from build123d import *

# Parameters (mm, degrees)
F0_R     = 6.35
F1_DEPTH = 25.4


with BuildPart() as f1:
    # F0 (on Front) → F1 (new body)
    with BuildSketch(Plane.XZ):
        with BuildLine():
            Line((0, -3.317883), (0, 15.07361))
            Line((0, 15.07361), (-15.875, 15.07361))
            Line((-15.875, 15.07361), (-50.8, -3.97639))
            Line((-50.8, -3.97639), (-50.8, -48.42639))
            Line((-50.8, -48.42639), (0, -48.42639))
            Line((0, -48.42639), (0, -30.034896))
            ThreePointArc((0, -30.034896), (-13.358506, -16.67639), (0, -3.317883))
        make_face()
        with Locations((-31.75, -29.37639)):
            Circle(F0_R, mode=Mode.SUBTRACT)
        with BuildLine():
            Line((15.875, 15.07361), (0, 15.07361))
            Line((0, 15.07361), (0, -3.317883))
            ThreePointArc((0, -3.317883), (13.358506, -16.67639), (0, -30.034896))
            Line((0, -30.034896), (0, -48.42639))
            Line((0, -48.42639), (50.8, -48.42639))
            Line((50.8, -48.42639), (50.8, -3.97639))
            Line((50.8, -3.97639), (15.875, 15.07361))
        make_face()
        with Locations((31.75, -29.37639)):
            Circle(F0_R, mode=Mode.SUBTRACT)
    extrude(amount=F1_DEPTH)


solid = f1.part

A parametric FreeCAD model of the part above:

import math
import FreeCAD as App
import Part
import Sketcher
Q = App.Units.Quantity


def add_polygon(sketch, points):
    """Adds a closed chain of lines whose ends are joined by coincident constraints."""
    first, n = sketch.GeometryCount, len(points)
    for a, b in zip(points, points[1:] + points[:1]):
        sketch.addGeometry(Part.LineSegment(App.Vector(*a, 0), App.Vector(*b, 0)), False)
    for i in range(n):
        sketch.addConstraint(Sketcher.Constraint("Coincident", first + i, 2, first + (i + 1) % n, 1))

doc = App.newDocument("Part")
body = doc.addObject("PartDesign::Body", "Body")

# Sketch on XZ plane
sketch1 = body.newObject("Sketcher::SketchObject", "Sketch")
sketch1.AttachmentSupport = (doc.getObject("XZ_Plane"), [""])
sketch1.MapMode = "FlatFace"
add_polygon(sketch1, [(-16, 15), (-51, -4), (-51, -48), (51, -48), (51, -4), (16, 15)])  # lines 0-5
sketch1.addGeometry(Part.Circle(App.Vector(-32, -29, 0), App.Vector(0, 0, 1), 6), False)  # 6
sketch1.addGeometry(Part.Circle(App.Vector(32, -29, 0), App.Vector(0, 0, 1), 6), False)  # 7
sketch1.addGeometry(Part.ArcOfCircle(Part.Circle(App.Vector(0, -17, 0), App.Vector(0, 0, 1), 13), math.radians(90), math.radians(270)), False)  # 8
sketch1.addGeometry(Part.ArcOfCircle(Part.Circle(App.Vector(0, -17, 0), App.Vector(0, 0, 1), 13), math.radians(-90), math.radians(90)), False)  # 9
sketch1.addConstraint([
    Sketcher.Constraint("Tangent", 8, 1, 9, 2),
    Sketcher.Constraint("Coincident", 9, 1, 8, 2),
    Sketcher.Constraint("Vertical", 1),
    Sketcher.Constraint("Horizontal", 2),
    Sketcher.Constraint("Vertical", 3),
    Sketcher.Constraint("Horizontal", 5),
    Sketcher.Constraint("Equal", 6, 7),
    Sketcher.Constraint("Symmetric", 6, 3, 7, 3, -2),
    Sketcher.Constraint("Symmetric", 0, 2, 3, 2, -2),
    Sketcher.Constraint("PointOnObject", 8, 3, -2),
    Sketcher.Constraint("PointOnObject", 8, 1, -2),
    Sketcher.Constraint("PointOnObject", 9, 1, -2),
    Sketcher.Constraint("Equal", 0, 4),
    Sketcher.Constraint("Diameter", 6, Q("0.5 in")),
    Sketcher.Constraint("DistanceX", 2, 1, 2, 2, Q("4 in")),
    Sketcher.Constraint("DistanceY", 6, 3, 0, 2, Q("1 in")),
    Sketcher.Constraint("DistanceX", 5, 2, 5, 1, Q("1.25 in")),
    Sketcher.Constraint("DistanceY", 1, 2, 1, 1, Q("1.75 in")),
    Sketcher.Constraint("DistanceX", 6, 3, 7, 3, Q("2.5 in")),
    Sketcher.Constraint("DistanceY", 7, 3, 8, 3, Q("0.5 in")),
    Sketcher.Constraint("DistanceY", 8, 3, 4, 2, Q("1.25 in")),
    Sketcher.Constraint("Radius", 8, Q("13.358507 mm")),
    Sketcher.Constraint("DistanceY", 6, 3, -1, 1, Q("29.37639 mm")),
])
pad1 = body.newObject("PartDesign::Pad", "Pad")
pad1.Profile = sketch1
pad1.Length = Q("1 in")

doc.recompute()
